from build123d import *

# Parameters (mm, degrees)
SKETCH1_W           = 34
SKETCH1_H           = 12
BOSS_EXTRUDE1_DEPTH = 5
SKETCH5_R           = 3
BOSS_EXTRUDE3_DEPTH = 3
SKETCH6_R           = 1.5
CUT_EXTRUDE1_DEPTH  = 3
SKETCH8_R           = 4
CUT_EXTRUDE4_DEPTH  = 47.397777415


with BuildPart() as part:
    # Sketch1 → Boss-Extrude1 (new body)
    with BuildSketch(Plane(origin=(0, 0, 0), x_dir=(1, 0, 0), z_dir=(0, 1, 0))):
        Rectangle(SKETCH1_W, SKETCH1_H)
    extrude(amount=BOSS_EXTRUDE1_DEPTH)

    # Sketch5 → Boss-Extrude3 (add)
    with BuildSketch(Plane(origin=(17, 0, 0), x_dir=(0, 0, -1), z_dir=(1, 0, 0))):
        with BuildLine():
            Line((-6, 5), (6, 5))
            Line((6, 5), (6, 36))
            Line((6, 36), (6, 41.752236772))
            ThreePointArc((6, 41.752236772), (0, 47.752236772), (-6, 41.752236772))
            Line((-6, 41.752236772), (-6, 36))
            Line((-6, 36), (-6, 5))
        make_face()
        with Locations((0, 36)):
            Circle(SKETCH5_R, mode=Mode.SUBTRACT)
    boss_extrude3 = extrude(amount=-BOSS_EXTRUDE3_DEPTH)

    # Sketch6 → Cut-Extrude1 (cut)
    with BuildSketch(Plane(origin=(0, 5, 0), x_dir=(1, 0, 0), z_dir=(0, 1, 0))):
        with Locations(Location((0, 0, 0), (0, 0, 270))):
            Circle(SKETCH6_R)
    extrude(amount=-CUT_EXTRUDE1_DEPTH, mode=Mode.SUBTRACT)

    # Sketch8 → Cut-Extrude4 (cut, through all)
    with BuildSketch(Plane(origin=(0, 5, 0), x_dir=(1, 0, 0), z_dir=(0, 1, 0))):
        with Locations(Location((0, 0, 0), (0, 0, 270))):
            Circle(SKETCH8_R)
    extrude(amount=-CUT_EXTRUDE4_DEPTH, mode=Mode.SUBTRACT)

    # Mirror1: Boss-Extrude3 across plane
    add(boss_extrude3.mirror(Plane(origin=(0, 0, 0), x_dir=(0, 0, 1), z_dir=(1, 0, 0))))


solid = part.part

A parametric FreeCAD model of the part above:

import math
import FreeCAD as App
import Part
import Sketcher

V = App.Vector
Q = App.Units.Quantity

doc = App.newDocument("Part")
body = doc.addObject("PartDesign::Body", "Body")

# Sketch on XZ plane
sketch1 = body.newObject("Sketcher::SketchObject", "Sketch")
sketch1.AttachmentSupport = (doc.getObject("XZ_Plane"), [""])
sketch1.MapMode = "FlatFace"
sketch1.addGeometry([
    Part.LineSegment(V(-17, -6, 0), V(-17, 6, 0)),
    Part.LineSegment(V(-17, 6, 0), V(17, 6, 0)),
    Part.LineSegment(V(17, 6, 0), V(17, -6, 0)),
    Part.LineSegment(V(17, -6, 0), V(-17, -6, 0)),
], False)
sketch1.addConstraint([
    Sketcher.Constraint("Coincident", 0, 2, 1, 1),
    Sketcher.Constraint("Coincident", 1, 2, 2, 1),
    Sketcher.Constraint("Coincident", 2, 2, 3, 1),
    Sketcher.Constraint("Coincident", 3, 2, 0, 1),
    Sketcher.Constraint("Vertical", 0),
    Sketcher.Constraint("Horizontal", 1),
    Sketcher.Constraint("Vertical", 2),
    Sketcher.Constraint("Horizontal", 3),
    Sketcher.Constraint("Symmetric", 0, 2, 2, 2, -1, 1),
    Sketcher.Constraint("DistanceX", 1, 1, 1, 2, Q("34 mm")),
    Sketcher.Constraint("DistanceY", 0, 1, 0, 2, Q("12 mm")),
])
pad1 = body.newObject("PartDesign::Pad", "Pad")
pad1.Profile = sketch1
pad1.Length = 5
pad1.Reversed = True

# Sketch on YZ plane
sketch2 = body.newObject("Sketcher::SketchObject", "Sketch001")
sketch2.AttachmentSupport = (doc.getObject("YZ_Plane"), [""])
sketch2.MapMode = "FlatFace"
sketch2.AttachmentOffset = App.Placement(V(0, 0, 17), App.Rotation())
sketch2.addGeometry([
    Part.LineSegment(V(5, 6, 0), V(5, -6, 0)),  # 0
    Part.LineSegment(V(5, -6, 0), V(41.8, -6, 0)),  # 1
    Part.ArcOfCircle(Part.Circle(V(41.8, 0, 0), V(0, 0, 1), 6), math.radians(-90), math.radians(90)),  # 2
    Part.LineSegment(V(41.8, 6, 0), V(5, 6, 0)),  # 3
    Part.Circle(V(36, 0, 0), V(0, 0, 1), 3),  # 4
], False)
sketch2.addConstraint([
    Sketcher.Constraint("Coincident", 0, 2, 1, 1),
    Sketcher.Constraint("Tangent", 1, 2, 2, 1),
    Sketcher.Constraint("Tangent", 2, 2, 3, 1),
    Sketcher.Constraint("Coincident", 3, 2, 0, 1),
    Sketcher.Constraint("Vertical", 0),
    Sketcher.Constraint("Horizontal", 1),
    Sketcher.Constraint("Horizontal", 3),
    Sketcher.Constraint("PointOnObject", 2, 3, -1),
    Sketcher.Constraint("PointOnObject", 4, 3, -1),
    Sketcher.Constraint("Diameter", 4, Q("6 mm")),
    Sketcher.Constraint("Radius", 2, Q("6 mm")),
    Sketcher.Constraint("DistanceX", -1, 1, 4, 3, Q("36 mm")),
    Sketcher.Constraint("DistanceX", -1, 1, 0, 2, Q("5 mm")),
    Sketcher.Constraint("DistanceX", 1, 1, 1, 2, Q("36.752237 mm")),
])
pad2 = body.newObject("PartDesign::Pad", "Pad001")
pad2.Profile = sketch2
pad2.Length = 3
pad2.Reversed = True

# Sketch on XZ plane
sketch3 = body.newObject("Sketcher::SketchObject", "Sketch002")
sketch3.AttachmentSupport = (doc.getObject("XZ_Plane"), [""])
sketch3.MapMode = "FlatFace"
sketch3.AttachmentOffset = App.Placement(V(0, 0, -5), App.Rotation())
sketch3.addGeometry(Part.Circle(V(0, 0, 0), V(0, 0, 1), 1.5), False)
sketch3.addConstraint([
    Sketcher.Constraint("Coincident", 0, 3, -1, 1),
    Sketcher.Constraint("Diameter", 0, Q("3 mm")),
])
pocket1 = body.newObject("PartDesign::Pocket", "Pocket")
pocket1.Profile = sketch3
pocket1.Length = 3
pocket1.Reversed = True

# Sketch on XZ plane
sketch4 = body.newObject("Sketcher::SketchObject", "Sketch003")
sketch4.AttachmentSupport = (doc.getObject("XZ_Plane"), [""])
sketch4.MapMode = "FlatFace"
sketch4.AttachmentOffset = App.Placement(V(0, 0, -5), App.Rotation())
sketch4.addGeometry(Part.Circle(V(0, 0, 0), V(0, 0, 1), 4), False)
sketch4.addConstraint([
    Sketcher.Constraint("Coincident", 0, 3, -1, 1),
    Sketcher.Constraint("Diameter", 0, Q("8 mm")),
])
pocket2 = body.newObject("PartDesign::Pocket", "Pocket001")
pocket2.Profile = sketch4
pocket2.Type = "ThroughAll"
pocket2.Reversed = True
doc.recompute()

mirrored = body.newObject("PartDesign::Mirrored", "Mirrored")
mirrored.Originals = [pad2]
mirrored.MirrorPlane = (doc.getObject("YZ_Plane"), [""])
body.Tip = mirrored

doc.recompute()
